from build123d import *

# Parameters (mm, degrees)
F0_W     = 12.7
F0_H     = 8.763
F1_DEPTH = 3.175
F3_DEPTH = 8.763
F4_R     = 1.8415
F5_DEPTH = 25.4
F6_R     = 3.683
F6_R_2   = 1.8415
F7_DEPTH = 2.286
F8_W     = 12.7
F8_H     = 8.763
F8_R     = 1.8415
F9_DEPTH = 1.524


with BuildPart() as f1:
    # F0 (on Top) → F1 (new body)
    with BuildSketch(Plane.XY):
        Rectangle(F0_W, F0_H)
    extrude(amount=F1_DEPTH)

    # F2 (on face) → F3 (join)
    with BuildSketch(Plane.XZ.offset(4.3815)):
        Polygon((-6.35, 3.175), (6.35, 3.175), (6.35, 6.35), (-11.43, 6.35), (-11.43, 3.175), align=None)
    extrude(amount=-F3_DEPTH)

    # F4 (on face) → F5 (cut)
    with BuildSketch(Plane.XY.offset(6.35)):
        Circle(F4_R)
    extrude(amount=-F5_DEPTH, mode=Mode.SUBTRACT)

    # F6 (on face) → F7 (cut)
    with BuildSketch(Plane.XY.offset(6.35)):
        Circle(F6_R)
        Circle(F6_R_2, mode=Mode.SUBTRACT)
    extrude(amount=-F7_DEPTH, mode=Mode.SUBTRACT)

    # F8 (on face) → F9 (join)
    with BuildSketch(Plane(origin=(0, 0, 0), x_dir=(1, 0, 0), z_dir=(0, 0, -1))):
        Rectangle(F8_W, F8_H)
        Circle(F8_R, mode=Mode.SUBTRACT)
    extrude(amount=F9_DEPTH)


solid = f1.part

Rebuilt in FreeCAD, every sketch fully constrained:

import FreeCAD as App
import Part
import Sketcher
Q = App.Units.Quantity

doc = App.newDocument("Part")
body = doc.addObject("PartDesign::Body", "Body")

sketch1 = body.newObject("Sketcher::SketchObject", "Sketch")
sketch1.AttachmentSupport = (doc.getObject("XY_Plane"), [""])
sketch1.MapMode = "FlatFace"
sketch1.addGeometry(Part.LineSegment(App.Vector(-6.35, 4.3815, 0), App.Vector(-6.35, -4.3815, 0)), False)
sketch1.addGeometry(Part.LineSegment(App.Vector(-6.35, -4.3815, 0), App.Vector(6.35, -4.3815, 0)), False)
sketch1.addGeometry(Part.LineSegment(App.Vector(6.35, -4.3815, 0), App.Vector(6.35, 4.3815, 0)), False)
sketch1.addGeometry(Part.LineSegment(App.Vector(6.35, 4.3815, 0), App.Vector(-6.35, 4.3815, 0)), False)
sketch1.addConstraint(Sketcher.Constraint("Coincident", 0, 2, 1, 1))
sketch1.addConstraint(Sketcher.Constraint("Coincident", 1, 2, 2, 1))
sketch1.addConstraint(Sketcher.Constraint("Coincident", 2, 2, 3, 1))
sketch1.addConstraint(Sketcher.Constraint("Coincident", 3, 2, 0, 1))
sketch1.addConstraint(Sketcher.Constraint("Vertical", 0))
sketch1.addConstraint(Sketcher.Constraint("Horizontal", 1))
sketch1.addConstraint(Sketcher.Constraint("Vertical", 2))
sketch1.addConstraint(Sketcher.Constraint("Horizontal", 3))
sketch1.addConstraint(Sketcher.Constraint("Symmetric", 0, 2, 2, 2, -1, 1))
sketch1.addConstraint(Sketcher.Constraint("DistanceX", 1, 1, 1, 2, Q("0.5 in")))
sketch1.addConstraint(Sketcher.Constraint("DistanceY", 0, 2, 0, 1, Q("0.345 in")))
pad1 = body.newObject("PartDesign::Pad", "Pad")
pad1.Profile = sketch1
pad1.Length = Q("0.125 in")

sketch2 = body.newObject("Sketcher::SketchObject", "Sketch001")
sketch2.AttachmentSupport = (doc.getObject("XZ_Plane"), [""])
sketch2.MapMode = "FlatFace"
sketch2.AttachmentOffset = App.Placement(App.Vector(0, 0, 0.1725 * 25.4), App.Rotation())
sketch2.addGeometry(Part.LineSegment(App.Vector(6.35, 3.175, 0), App.Vector(6.35, 6.35, 0)), False)
sketch2.addGeometry(Part.LineSegment(App.Vector(6.35, 6.35, 0), App.Vector(-11.43, 6.35, 0)), False)
sketch2.addGeometry(Part.LineSegment(App.Vector(-11.43, 6.35, 0), App.Vector(-11.43, 3.175, 0)), False)
sketch2.addGeometry(Part.LineSegment(App.Vector(-11.43, 3.175, 0), App.Vector(6.35, 3.175, 0)), False)
sketch2.addConstraint(Sketcher.Constraint("Coincident", 0, 2, 1, 1))
sketch2.addConstraint(Sketcher.Constraint("Coincident", 1, 2, 2, 1))
sketch2.addConstraint(Sketcher.Constraint("Coincident", 2, 2, 3, 1))
sketch2.addConstraint(Sketcher.Constraint("Coincident", 3, 2, 0, 1))
sketch2.addConstraint(Sketcher.Constraint("Vertical", 0))
sketch2.addConstraint(Sketcher.Constraint("Horizontal", 1))
sketch2.addConstraint(Sketcher.Constraint("Vertical", 2))
sketch2.addConstraint(Sketcher.Constraint("Horizontal", 3))
sketch2.addConstraint(Sketcher.Constraint("DistanceX", 1, 2, 1, 1, Q("0.7 in")))
sketch2.addConstraint(Sketcher.Constraint("DistanceY", 0, 1, 0, 2, Q("0.125 in")))
sketch2.addConstraint(Sketcher.Constraint("DistanceX", -1, 1, 0, 2, Q("0.25 in")))
sketch2.addConstraint(Sketcher.Constraint("DistanceY", -1, 1, 0, 2, Q("0.25 in")))
pad2 = body.newObject("PartDesign::Pad", "Pad001")
pad2.Profile = sketch2
pad2.Length = Q("0.345 in")
pad2.Reversed = True

sketch3 = body.newObject("Sketcher::SketchObject", "Sketch002")
sketch3.AttachmentSupport = (doc.getObject("XY_Plane"), [""])
sketch3.MapMode = "FlatFace"
sketch3.AttachmentOffset = App.Placement(App.Vector(0, 0, 0.25 * 25.4), App.Rotation())
sketch3.addGeometry(Part.Circle(App.Vector(0, 0, 0), App.Vector(0, 0, 1), 1.8415), False)
sketch3.addConstraint(Sketcher.Constraint("Coincident", 0, 3, -1, 1))
sketch3.addConstraint(Sketcher.Constraint("Diameter", 0, Q("0.145 in")))
pocket1 = body.newObject("PartDesign::Pocket", "Pocket")
pocket1.Profile = sketch3
pocket1.Length = Q("1 in")

sketch4 = body.newObject("Sketcher::SketchObject", "Sketch003")
sketch4.AttachmentSupport = (doc.getObject("XY_Plane"), [""])
sketch4.MapMode = "FlatFace"
sketch4.AttachmentOffset = App.Placement(App.Vector(0, 0, 0.25 * 25.4), App.Rotation())
sketch4.addGeometry(Part.Circle(App.Vector(0, 0, 0), App.Vector(0, 0, 1), 3.683), False)
sketch4.addGeometry(Part.Circle(App.Vector(0, 0, 0), App.Vector(0, 0, 1), 1.8415), False)
sketch4.addConstraint(Sketcher.Constraint("Coincident", 0, 3, -1, 1))
sketch4.addConstraint(Sketcher.Constraint("Coincident", 1, 3, -1, 1))
sketch4.addConstraint(Sketcher.Constraint("Diameter", 0, Q("0.29 in")))
sketch4.addConstraint(Sketcher.Constraint("Diameter", 1, Q("0.145 in")))
pocket2 = body.newObject("PartDesign::Pocket", "Pocket001")
pocket2.Profile = sketch4
pocket2.Length = Q("0.09 in")

sketch5 = body.newObject("Sketcher::SketchObject", "Sketch004")
sketch5.AttachmentSupport = (doc.getObject("XY_Plane"), [""])
sketch5.MapMode = "FlatFace"
sketch5.addGeometry(Part.LineSegment(App.Vector(-6.35, -4.3815, 0), App.Vector(-6.35, 4.3815, 0)), False)
sketch5.addGeometry(Part.LineSegment(App.Vector(-6.35, 4.3815, 0), App.Vector(6.35, 4.3815, 0)), False)
sketch5.addGeometry(Part.LineSegment(App.Vector(6.35, 4.3815, 0), App.Vector(6.35, -4.3815, 0)), False)
sketch5.addGeometry(Part.LineSegment(App.Vector(6.35, -4.3815, 0), App.Vector(-6.35, -4.3815, 0)), False)
sketch5.addGeometry(Part.Circle(App.Vector(0, 0, 0), App.Vector(0, 0, 1), 1.8415), False)
sketch5.addConstraint(Sketcher.Constraint("Coincident", 0, 2, 1, 1))
sketch5.addConstraint(Sketcher.Constraint("Coincident", 1, 2, 2, 1))
sketch5.addConstraint(Sketcher.Constraint("Coincident", 2, 2, 3, 1))
sketch5.addConstraint(Sketcher.Constraint("Coincident", 3, 2, 0, 1))
sketch5.addConstraint(Sketcher.Constraint("Vertical", 0))
sketch5.addConstraint(Sketcher.Constraint("Horizontal", 1))
sketch5.addConstraint(Sketcher.Constraint("Vertical", 2))
sketch5.addConstraint(Sketcher.Constraint("Horizontal", 3))
sketch5.addConstraint(Sketcher.Constraint("Coincident", 4, 3, -1, 1))
sketch5.addConstraint(Sketcher.Constraint("Symmetric", 0, 2, 2, 2, -1, 1))
sketch5.addConstraint(Sketcher.Constraint("Diameter", 4, Q("0.145 in")))
sketch5.addConstraint(Sketcher.Constraint("DistanceX", 1, 1, 1, 2, Q("0.5 in")))
sketch5.addConstraint(Sketcher.Constraint("DistanceY", 0, 1, 0, 2, Q("0.345 in")))
pad3 = body.newObject("PartDesign::Pad", "Pad002")
pad3.Profile = sketch5
pad3.Length = Q("0.06 in")
pad3.Reversed = True

doc.recompute()
